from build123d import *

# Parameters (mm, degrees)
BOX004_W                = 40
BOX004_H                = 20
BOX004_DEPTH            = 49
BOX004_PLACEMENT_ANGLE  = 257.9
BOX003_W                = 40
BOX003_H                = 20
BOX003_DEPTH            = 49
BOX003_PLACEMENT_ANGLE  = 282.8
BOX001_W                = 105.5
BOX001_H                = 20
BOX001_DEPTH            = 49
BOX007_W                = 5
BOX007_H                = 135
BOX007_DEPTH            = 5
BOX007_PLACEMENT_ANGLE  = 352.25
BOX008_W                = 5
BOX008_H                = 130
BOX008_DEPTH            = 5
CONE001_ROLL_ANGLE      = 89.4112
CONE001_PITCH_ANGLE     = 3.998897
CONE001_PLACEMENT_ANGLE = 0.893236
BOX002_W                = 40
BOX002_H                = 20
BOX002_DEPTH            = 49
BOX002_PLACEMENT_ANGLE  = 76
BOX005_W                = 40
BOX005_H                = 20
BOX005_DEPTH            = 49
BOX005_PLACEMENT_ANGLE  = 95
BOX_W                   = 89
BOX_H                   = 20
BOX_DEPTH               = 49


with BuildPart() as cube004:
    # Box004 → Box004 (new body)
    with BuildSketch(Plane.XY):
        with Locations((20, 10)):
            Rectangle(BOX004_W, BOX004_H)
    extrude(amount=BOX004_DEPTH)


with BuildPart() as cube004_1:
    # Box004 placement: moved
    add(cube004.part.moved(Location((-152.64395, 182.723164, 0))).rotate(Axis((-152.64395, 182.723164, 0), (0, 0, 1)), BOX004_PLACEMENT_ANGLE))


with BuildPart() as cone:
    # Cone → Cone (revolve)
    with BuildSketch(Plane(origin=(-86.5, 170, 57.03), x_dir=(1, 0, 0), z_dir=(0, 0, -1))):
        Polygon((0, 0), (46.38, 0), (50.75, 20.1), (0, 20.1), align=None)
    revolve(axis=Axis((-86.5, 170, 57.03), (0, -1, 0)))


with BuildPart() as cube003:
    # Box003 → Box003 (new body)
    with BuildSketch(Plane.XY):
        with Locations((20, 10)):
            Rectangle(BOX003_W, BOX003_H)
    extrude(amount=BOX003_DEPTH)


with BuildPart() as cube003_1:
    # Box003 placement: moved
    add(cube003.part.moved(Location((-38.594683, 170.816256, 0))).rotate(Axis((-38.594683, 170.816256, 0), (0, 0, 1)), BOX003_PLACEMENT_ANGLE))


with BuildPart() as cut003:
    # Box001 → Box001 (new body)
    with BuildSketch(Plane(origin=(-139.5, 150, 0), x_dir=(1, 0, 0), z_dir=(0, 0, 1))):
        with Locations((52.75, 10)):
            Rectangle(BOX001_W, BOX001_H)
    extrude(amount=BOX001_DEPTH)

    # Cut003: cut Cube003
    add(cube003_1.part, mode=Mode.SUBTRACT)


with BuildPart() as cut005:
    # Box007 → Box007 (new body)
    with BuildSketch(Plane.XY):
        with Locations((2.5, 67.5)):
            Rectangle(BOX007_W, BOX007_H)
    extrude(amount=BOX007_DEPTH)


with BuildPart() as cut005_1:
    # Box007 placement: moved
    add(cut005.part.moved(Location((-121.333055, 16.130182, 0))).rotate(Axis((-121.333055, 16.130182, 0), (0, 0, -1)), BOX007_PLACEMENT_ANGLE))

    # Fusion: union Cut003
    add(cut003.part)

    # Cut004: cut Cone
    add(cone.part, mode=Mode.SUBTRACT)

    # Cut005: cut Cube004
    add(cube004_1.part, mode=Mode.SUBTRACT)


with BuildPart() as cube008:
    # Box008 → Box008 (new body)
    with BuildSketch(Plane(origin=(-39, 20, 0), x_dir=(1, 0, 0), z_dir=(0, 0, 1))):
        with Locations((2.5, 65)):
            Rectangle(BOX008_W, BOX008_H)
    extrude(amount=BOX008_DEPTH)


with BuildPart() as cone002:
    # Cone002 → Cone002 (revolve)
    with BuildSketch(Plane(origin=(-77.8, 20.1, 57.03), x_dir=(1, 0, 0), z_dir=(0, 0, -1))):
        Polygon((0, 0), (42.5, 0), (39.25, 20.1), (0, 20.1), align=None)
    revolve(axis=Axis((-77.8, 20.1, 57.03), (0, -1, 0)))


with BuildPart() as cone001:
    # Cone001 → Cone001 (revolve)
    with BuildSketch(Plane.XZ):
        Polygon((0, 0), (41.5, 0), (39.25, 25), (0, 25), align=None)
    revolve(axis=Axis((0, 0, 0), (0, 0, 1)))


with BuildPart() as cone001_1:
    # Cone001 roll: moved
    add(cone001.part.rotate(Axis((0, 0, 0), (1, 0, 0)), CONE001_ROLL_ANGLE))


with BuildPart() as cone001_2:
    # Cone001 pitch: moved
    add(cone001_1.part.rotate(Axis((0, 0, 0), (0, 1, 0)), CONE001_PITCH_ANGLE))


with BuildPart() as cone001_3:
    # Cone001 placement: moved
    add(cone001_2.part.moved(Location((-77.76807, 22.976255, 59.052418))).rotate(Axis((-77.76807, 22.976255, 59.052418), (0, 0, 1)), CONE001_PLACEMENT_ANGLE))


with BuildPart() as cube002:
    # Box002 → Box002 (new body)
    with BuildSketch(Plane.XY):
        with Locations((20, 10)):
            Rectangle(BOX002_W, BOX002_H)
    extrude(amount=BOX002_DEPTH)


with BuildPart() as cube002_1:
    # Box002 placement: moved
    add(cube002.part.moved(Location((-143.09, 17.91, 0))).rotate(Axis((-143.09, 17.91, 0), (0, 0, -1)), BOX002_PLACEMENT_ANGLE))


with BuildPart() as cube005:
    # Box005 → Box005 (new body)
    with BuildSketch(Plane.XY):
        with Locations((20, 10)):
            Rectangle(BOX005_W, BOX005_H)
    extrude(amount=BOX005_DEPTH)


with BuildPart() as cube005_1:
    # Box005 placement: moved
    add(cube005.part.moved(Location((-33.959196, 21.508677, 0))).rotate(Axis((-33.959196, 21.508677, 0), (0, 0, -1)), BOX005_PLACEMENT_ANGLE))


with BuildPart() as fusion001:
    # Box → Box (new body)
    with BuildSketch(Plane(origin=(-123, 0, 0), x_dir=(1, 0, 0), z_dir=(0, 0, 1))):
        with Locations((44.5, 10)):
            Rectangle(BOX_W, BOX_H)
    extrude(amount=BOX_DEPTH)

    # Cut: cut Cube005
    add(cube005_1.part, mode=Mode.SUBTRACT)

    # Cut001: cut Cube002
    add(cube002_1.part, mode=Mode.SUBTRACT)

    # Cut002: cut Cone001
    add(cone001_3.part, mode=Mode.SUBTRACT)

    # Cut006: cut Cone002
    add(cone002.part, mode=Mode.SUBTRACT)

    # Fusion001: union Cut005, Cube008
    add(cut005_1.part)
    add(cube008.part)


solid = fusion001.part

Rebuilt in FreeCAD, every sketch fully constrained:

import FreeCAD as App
import Part
import Sketcher

V = App.Vector


def add_polygon(sketch, points):
    """Adds a closed chain of lines whose ends are joined by coincident constraints."""
    first, n = sketch.GeometryCount, len(points)
    for a, b in zip(points, points[1:] + points[:1]):
        sketch.addGeometry(Part.LineSegment(App.Vector(*a, 0), App.Vector(*b, 0)), False)
    for i in range(n):
        sketch.addConstraint(Sketcher.Constraint("Coincident", first + i, 2, first + (i + 1) % n, 1))

doc = App.newDocument("Part")
body = doc.addObject("PartDesign::Body", "Body")

sketch1 = doc.addObject("Sketcher::SketchObject", "Sketch")
body.addObject(sketch1)
sketch1.AttachmentSupport = (doc.XY_Plane, [""])
sketch1.MapMode = "FlatFace"
add_polygon(sketch1, [(0, 20), (0, 0), (40, 0), (40, 20)])
sketch1.addConstraint([
    Sketcher.Constraint("Vertical", 0),
    Sketcher.Constraint("Horizontal", 1),
    Sketcher.Constraint("Vertical", 2),
    Sketcher.Constraint("Horizontal", 3),
    Sketcher.Constraint("Coincident", 0, 2, -1, 1),
    Sketcher.Constraint("DistanceX", 1, 1, 1, 2, 40.0),
    Sketcher.Constraint("DistanceY", 0, 2, 0, 1, 20.0),
])
pad1 = doc.addObject("PartDesign::Pad", "Pad")
body.addObject(pad1)
pad1.Profile = sketch1
pad1.Length = 49
body2 = doc.addObject("PartDesign::Body", "Body001")
doc.recompute()

body.Placement = App.Placement(V(-152.64395, 182.723164, 0), App.Rotation(V(0, 0, 1), 257.9))
boolean = doc.addObject("PartDesign::Boolean", "Boolean")
body2.addObject(boolean)
boolean.Type = "Fuse"
boolean.addObjects([body])
body3 = doc.addObject("PartDesign::Body", "Body002")

sketch2 = doc.addObject("Sketcher::SketchObject", "Sketch001")
body3.addObject(sketch2)
sketch2.AttachmentSupport = (doc.getObject("XY_Plane002"), [""])
sketch2.MapMode = "FlatFace"
sketch2.AttachmentOffset = App.Placement(V(0, 0, 57.03), App.Rotation())
add_polygon(sketch2, [(-86.5, 170), (-40.12, 170), (-35.75, 149.9), (-86.5, 149.9)])
sketch2.addGeometry(Part.LineSegment(V(-86.5, 170, 0), V(-86.5, 149.9, 0)), True)
sketch2.addConstraint([
    Sketcher.Constraint("Horizontal", 0),
    Sketcher.Constraint("Horizontal", 2),
    Sketcher.Constraint("Vertical", 3),
    Sketcher.Constraint("Vertical", 4),
    Sketcher.Constraint("Coincident", 4, 1, 3, 2),
    Sketcher.Constraint("Horizontal", 1, 2, 4, 2),
    Sketcher.Constraint("DistanceY", 3, 1, 3, 2, 20.1),
    Sketcher.Constraint("DistanceY", -1, 1, 0, 2, 170.0),
    Sketcher.Constraint("DistanceX", 0, 1, 0, 2, 46.38),
    Sketcher.Constraint("DistanceX", 2, 2, 2, 1, 50.75),
    Sketcher.Constraint("DistanceX", 2, 2, -1, 1, 86.5),
])
revolution = doc.addObject("PartDesign::Revolution", "Revolution")
body3.addObject(revolution)
revolution.Profile = sketch2
revolution.ReferenceAxis = (sketch2, ["Axis0"])
revolution.Angle = 360
body4 = doc.addObject("PartDesign::Body", "Body003")

sketch3 = doc.addObject("Sketcher::SketchObject", "Sketch002")
body4.addObject(sketch3)
sketch3.AttachmentSupport = (doc.getObject("XY_Plane003"), [""])
sketch3.MapMode = "FlatFace"
add_polygon(sketch3, [(0, 20), (0, 0), (40, 0), (40, 20)])
sketch3.addConstraint([
    Sketcher.Constraint("Vertical", 0),
    Sketcher.Constraint("Horizontal", 1),
    Sketcher.Constraint("Vertical", 2),
    Sketcher.Constraint("Horizontal", 3),
    Sketcher.Constraint("Coincident", 0, 2, -1, 1),
    Sketcher.Constraint("DistanceX", 1, 1, 1, 2, 40.0),
    Sketcher.Constraint("DistanceY", 0, 2, 0, 1, 20.0),
])
pad2 = doc.addObject("PartDesign::Pad", "Pad001")
body4.addObject(pad2)
pad2.Profile = sketch3
pad2.Length = 49
body5 = doc.addObject("PartDesign::Body", "Body004")
doc.recompute()

body4.Placement = App.Placement(V(-38.594683, 170.816256, 0), App.Rotation(V(0, 0, 1), 282.8))
boolean2 = doc.addObject("PartDesign::Boolean", "Boolean001")
body5.addObject(boolean2)
boolean2.Type = "Fuse"
boolean2.addObjects([body4])
body6 = doc.addObject("PartDesign::Body", "Body005")

sketch4 = doc.addObject("Sketcher::SketchObject", "Sketch003")
body6.addObject(sketch4)
sketch4.AttachmentSupport = (doc.getObject("XY_Plane005"), [""])
sketch4.MapMode = "FlatFace"
add_polygon(sketch4, [(-139.5, 170), (-139.5, 150), (-34, 150), (-34, 170)])
sketch4.addConstraint([
    Sketcher.Constraint("Vertical", 0),
    Sketcher.Constraint("Horizontal", 1),
    Sketcher.Constraint("Vertical", 2),
    Sketcher.Constraint("Horizontal", 3),
    Sketcher.Constraint("DistanceY", 0, 2, 0, 1, 20.0),
    Sketcher.Constraint("DistanceX", 1, 1, 1, 2, 105.5),
    Sketcher.Constraint("DistanceY", -1, 1, 0, 2, 150.0),
    Sketcher.Constraint("DistanceX", 1, 2, -1, 1, 34.0),
])
pad3 = doc.addObject("PartDesign::Pad", "Pad002")
body6.addObject(pad3)
pad3.Profile = sketch4
pad3.Length = 49
doc.recompute()

boolean3 = doc.addObject("PartDesign::Boolean", "Boolean002")
body6.addObject(boolean3)
boolean3.Type = "Cut"
boolean3.addObjects([body5])
body7 = doc.addObject("PartDesign::Body", "Body006")

sketch5 = doc.addObject("Sketcher::SketchObject", "Sketch004")
body7.addObject(sketch5)
sketch5.AttachmentSupport = (doc.getObject("XY_Plane006"), [""])
sketch5.MapMode = "FlatFace"
add_polygon(sketch5, [(0, 135), (0, 0), (5, 0), (5, 135)])
sketch5.addConstraint([
    Sketcher.Constraint("Vertical", 0),
    Sketcher.Constraint("Horizontal", 1),
    Sketcher.Constraint("Vertical", 2),
    Sketcher.Constraint("Horizontal", 3),
    Sketcher.Constraint("Coincident", 0, 2, -1, 1),
    Sketcher.Constraint("DistanceX", 1, 1, 1, 2, 5.0),
    Sketcher.Constraint("DistanceY", 0, 2, 0, 1, 135.0),
])
pad4 = doc.addObject("PartDesign::Pad", "Pad003")
body7.addObject(pad4)
pad4.Profile = sketch5
pad4.Length = 5
body8 = doc.addObject("PartDesign::Body", "Body007")
doc.recompute()

body7.Placement = App.Placement(V(-121.333055, 16.130182, 0), App.Rotation(V(0, 0, -1), 352.25))
boolean4 = doc.addObject("PartDesign::Boolean", "Boolean003")
body8.addObject(boolean4)
boolean4.Type = "Fuse"
boolean4.addObjects([body7])
doc.recompute()

boolean5 = doc.addObject("PartDesign::Boolean", "Boolean004")
body8.addObject(boolean5)
boolean5.Type = "Fuse"
boolean5.addObjects([body6])
doc.recompute()

boolean6 = doc.addObject("PartDesign::Boolean", "Boolean005")
body8.addObject(boolean6)
boolean6.Type = "Cut"
boolean6.addObjects([body3])
doc.recompute()

boolean7 = doc.addObject("PartDesign::Boolean", "Boolean006")
body8.addObject(boolean7)
boolean7.Type = "Cut"
boolean7.addObjects([body2])
body9 = doc.addObject("PartDesign::Body", "Body008")

sketch6 = doc.addObject("Sketcher::SketchObject", "Sketch005")
body9.addObject(sketch6)
sketch6.AttachmentSupport = (doc.getObject("XY_Plane008"), [""])
sketch6.MapMode = "FlatFace"
add_polygon(sketch6, [(-39, 150), (-39, 20), (-34, 20), (-34, 150)])
sketch6.addConstraint([
    Sketcher.Constraint("Vertical", 0),
    Sketcher.Constraint("Horizontal", 1),
    Sketcher.Constraint("Vertical", 2),
    Sketcher.Constraint("Horizontal", 3),
    Sketcher.Constraint("DistanceX", 1, 1, 1, 2, 5.0),
    Sketcher.Constraint("DistanceY", 0, 2, 0, 1, 130.0),
    Sketcher.Constraint("DistanceX", 0, 2, -1, 1, 39.0),
    Sketcher.Constraint("DistanceY", -1, 1, 0, 2, 20.0),
])
pad5 = doc.addObject("PartDesign::Pad", "Pad004")
body9.addObject(pad5)
pad5.Profile = sketch6
pad5.Length = 5
body10 = doc.addObject("PartDesign::Body", "Body009")

sketch7 = doc.addObject("Sketcher::SketchObject", "Sketch006")
body10.addObject(sketch7)
sketch7.AttachmentSupport = (doc.getObject("XY_Plane009"), [""])
sketch7.MapMode = "FlatFace"
sketch7.AttachmentOffset = App.Placement(V(0, 0, 57.03), App.Rotation())
add_polygon(sketch7, [(-77.8, 20.1), (-35.3, 20.1), (-38.55, 0), (-77.8, 0)])
sketch7.addGeometry(Part.LineSegment(V(-77.8, 20.1, 0), V(-77.8, 0, 0)), True)
sketch7.addConstraint([
    Sketcher.Constraint("Horizontal", 0),
    Sketcher.Constraint("Horizontal", 2),
    Sketcher.Constraint("Vertical", 3),
    Sketcher.Constraint("Vertical", 4),
    Sketcher.Constraint("Coincident", 4, 1, 3, 2),
    Sketcher.Constraint("PointOnObject", 1, 2, -1),
    Sketcher.Constraint("PointOnObject", 4, 2, -1),
    Sketcher.Constraint("DistanceX", 0, 1, 0, 2, 42.5),
    Sketcher.Constraint("DistanceY", 3, 1, 3, 2, 20.1),
    Sketcher.Constraint("DistanceX", 2, 2, 2, 1, 39.25),
    Sketcher.Constraint("DistanceX", 0, 2, -1, 1, 35.3),
])
revolution2 = doc.addObject("PartDesign::Revolution", "Revolution001")
body10.addObject(revolution2)
revolution2.Profile = sketch7
revolution2.ReferenceAxis = (sketch7, ["Axis0"])
revolution2.Angle = 360
body11 = doc.addObject("PartDesign::Body", "Body010")

sketch8 = doc.addObject("Sketcher::SketchObject", "Sketch007")
body11.addObject(sketch8)
sketch8.AttachmentSupport = (doc.getObject("XZ_Plane010"), [""])
sketch8.MapMode = "FlatFace"
add_polygon(sketch8, [(0, 0), (41.5, 0), (39.25, 25), (0, 25)])
sketch8.addConstraint([
    Sketcher.Constraint("Horizontal", 0),
    Sketcher.Constraint("Horizontal", 2),
    Sketcher.Constraint("Vertical", 3),
    Sketcher.Constraint("Coincident", 3, 2, -1, 1),
    Sketcher.Constraint("DistanceY", 3, 2, 3, 1, 25.0),
    Sketcher.Constraint("DistanceX", 0, 1, 0, 2, 41.5),
    Sketcher.Constraint("DistanceX", 2, 2, 2, 1, 39.25),
])
revolution3 = doc.addObject("PartDesign::Revolution", "Revolution002")
body11.addObject(revolution3)
revolution3.Profile = sketch8
revolution3.ReferenceAxis = (sketch8, ["V_Axis"])
revolution3.Angle = 360
body12 = doc.addObject("PartDesign::Body", "Body011")
doc.recompute()

body11.Placement = App.Placement(V(0, 0, 0), App.Rotation(V(1, 0, 0), 89.4112))
boolean8 = doc.addObject("PartDesign::Boolean", "Boolean007")
body12.addObject(boolean8)
boolean8.Type = "Fuse"
boolean8.addObjects([body11])
body13 = doc.addObject("PartDesign::Body", "Body012")
doc.recompute()

body12.Placement = App.Placement(V(0, 0, 0), App.Rotation(V(0, 1, 0), 3.998897))
boolean9 = doc.addObject("PartDesign::Boolean", "Boolean008")
body13.addObject(boolean9)
boolean9.Type = "Fuse"
boolean9.addObjects([body12])
body14 = doc.addObject("PartDesign::Body", "Body013")
doc.recompute()

body13.Placement = App.Placement(V(-77.76807, 22.976255, 59.052418), App.Rotation(V(0, 0, 1), 0.893236))
boolean10 = doc.addObject("PartDesign::Boolean", "Boolean009")
body14.addObject(boolean10)
boolean10.Type = "Fuse"
boolean10.addObjects([body13])
body15 = doc.addObject("PartDesign::Body", "Body014")

sketch9 = doc.addObject("Sketcher::SketchObject", "Sketch008")
body15.addObject(sketch9)
sketch9.AttachmentSupport = (doc.getObject("XY_Plane014"), [""])
sketch9.MapMode = "FlatFace"
add_polygon(sketch9, [(0, 20), (0, 0), (40, 0), (40, 20)])
sketch9.addConstraint([
    Sketcher.Constraint("Vertical", 0),
    Sketcher.Constraint("Horizontal", 1),
    Sketcher.Constraint("Vertical", 2),
    Sketcher.Constraint("Horizontal", 3),
    Sketcher.Constraint("Coincident", 0, 2, -1, 1),
    Sketcher.Constraint("DistanceX", 1, 1, 1, 2, 40.0),
    Sketcher.Constraint("DistanceY", 0, 2, 0, 1, 20.0),
])
pad6 = doc.addObject("PartDesign::Pad", "Pad005")
body15.addObject(pad6)
pad6.Profile = sketch9
pad6.Length = 49
body16 = doc.addObject("PartDesign::Body", "Body015")
doc.recompute()

body15.Placement = App.Placement(V(-143.09, 17.91, 0), App.Rotation(V(0, 0, -1), 76))
boolean11 = doc.addObject("PartDesign::Boolean", "Boolean010")
body16.addObject(boolean11)
boolean11.Type = "Fuse"
boolean11.addObjects([body15])
body17 = doc.addObject("PartDesign::Body", "Body016")

sketch10 = doc.addObject("Sketcher::SketchObject", "Sketch009")
body17.addObject(sketch10)
sketch10.AttachmentSupport = (doc.getObject("XY_Plane016"), [""])
sketch10.MapMode = "FlatFace"
add_polygon(sketch10, [(0, 20), (0, 0), (40, 0), (40, 20)])
sketch10.addConstraint([
    Sketcher.Constraint("Vertical", 0),
    Sketcher.Constraint("Horizontal", 1),
    Sketcher.Constraint("Vertical", 2),
    Sketcher.Constraint("Horizontal", 3),
    Sketcher.Constraint("Coincident", 0, 2, -1, 1),
    Sketcher.Constraint("DistanceX", 1, 1, 1, 2, 40.0),
    Sketcher.Constraint("DistanceY", 0, 2, 0, 1, 20.0),
])
pad7 = doc.addObject("PartDesign::Pad", "Pad006")
body17.addObject(pad7)
pad7.Profile = sketch10
pad7.Length = 49
body18 = doc.addObject("PartDesign::Body", "Body017")
doc.recompute()

body17.Placement = App.Placement(V(-33.959196, 21.508677, 0), App.Rotation(V(0, 0, -1), 95))
boolean12 = doc.addObject("PartDesign::Boolean", "Boolean011")
body18.addObject(boolean12)
boolean12.Type = "Fuse"
boolean12.addObjects([body17])
body19 = doc.addObject("PartDesign::Body", "Body018")

sketch11 = doc.addObject("Sketcher::SketchObject", "Sketch010")
body19.addObject(sketch11)
sketch11.AttachmentSupport = (doc.getObject("XY_Plane018"), [""])
sketch11.MapMode = "FlatFace"
add_polygon(sketch11, [(-123, 20), (-123, 0), (-34, 0), (-34, 20)])
sketch11.addConstraint([
    Sketcher.Constraint("Vertical", 0),
    Sketcher.Constraint("Horizontal", 1),
    Sketcher.Constraint("Vertical", 2),
    Sketcher.Constraint("Horizontal", 3),
    Sketcher.Constraint("PointOnObject", 0, 2, -1),
    Sketcher.Constraint("DistanceX", 1, 1, 1, 2, 89.0),
    Sketcher.Constraint("DistanceY", 0, 2, 0, 1, 20.0),
    Sketcher.Constraint("DistanceX", 0, 2, -1, 1, 123.0),
])
pad8 = doc.addObject("PartDesign::Pad", "Pad007")
body19.addObject(pad8)
pad8.Profile = sketch11
pad8.Length = 49
doc.recompute()

boolean13 = doc.addObject("PartDesign::Boolean", "Boolean012")
body19.addObject(boolean13)
boolean13.Type = "Cut"
boolean13.addObjects([body18])
doc.recompute()

boolean14 = doc.addObject("PartDesign::Boolean", "Boolean013")
body19.addObject(boolean14)
boolean14.Type = "Cut"
boolean14.addObjects([body16])
doc.recompute()

boolean15 = doc.addObject("PartDesign::Boolean", "Boolean014")
body19.addObject(boolean15)
boolean15.Type = "Cut"
boolean15.addObjects([body14])
doc.recompute()

boolean16 = doc.addObject("PartDesign::Boolean", "Boolean015")
body19.addObject(boolean16)
boolean16.Type = "Cut"
boolean16.addObjects([body10])
doc.recompute()

boolean17 = doc.addObject("PartDesign::Boolean", "Boolean016")
body19.addObject(boolean17)
boolean17.Type = "Fuse"
boolean17.addObjects([body8])
doc.recompute()

boolean18 = doc.addObject("PartDesign::Boolean", "Boolean017")
body19.addObject(boolean18)
boolean18.Type = "Fuse"
boolean18.addObjects([body9])

doc.recompute()
